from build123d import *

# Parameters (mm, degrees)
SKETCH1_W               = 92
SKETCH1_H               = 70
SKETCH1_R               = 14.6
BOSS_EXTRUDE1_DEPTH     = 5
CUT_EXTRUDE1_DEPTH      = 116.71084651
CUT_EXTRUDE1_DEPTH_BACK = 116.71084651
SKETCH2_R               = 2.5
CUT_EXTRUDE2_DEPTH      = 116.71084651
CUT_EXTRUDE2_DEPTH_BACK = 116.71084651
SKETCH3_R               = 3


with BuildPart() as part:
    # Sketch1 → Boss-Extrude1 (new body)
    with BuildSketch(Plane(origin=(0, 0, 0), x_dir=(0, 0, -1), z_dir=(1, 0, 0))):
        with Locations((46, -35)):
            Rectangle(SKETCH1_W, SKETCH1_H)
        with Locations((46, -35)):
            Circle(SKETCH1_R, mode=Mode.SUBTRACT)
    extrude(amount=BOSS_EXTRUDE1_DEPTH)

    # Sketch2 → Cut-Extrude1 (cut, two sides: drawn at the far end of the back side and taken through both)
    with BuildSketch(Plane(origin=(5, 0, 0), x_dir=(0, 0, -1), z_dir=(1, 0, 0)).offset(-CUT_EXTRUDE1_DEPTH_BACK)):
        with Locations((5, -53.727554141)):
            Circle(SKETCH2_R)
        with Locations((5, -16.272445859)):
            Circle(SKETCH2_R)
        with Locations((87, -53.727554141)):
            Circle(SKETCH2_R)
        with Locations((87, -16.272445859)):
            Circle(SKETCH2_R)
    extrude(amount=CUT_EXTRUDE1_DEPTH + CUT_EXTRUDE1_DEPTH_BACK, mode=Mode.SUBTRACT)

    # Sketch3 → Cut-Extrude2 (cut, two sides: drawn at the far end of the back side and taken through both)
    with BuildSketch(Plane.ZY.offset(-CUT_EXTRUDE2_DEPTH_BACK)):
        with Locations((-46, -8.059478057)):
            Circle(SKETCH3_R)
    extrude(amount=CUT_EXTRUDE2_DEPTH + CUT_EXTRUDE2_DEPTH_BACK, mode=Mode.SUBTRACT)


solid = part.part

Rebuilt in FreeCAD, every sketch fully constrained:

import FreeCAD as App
import Part
import Sketcher

V = App.Vector
Q = App.Units.Quantity


def add_polygon(sketch, points):
    """Adds a closed chain of lines whose ends are joined by coincident constraints."""
    first, n = sketch.GeometryCount, len(points)
    for a, b in zip(points, points[1:] + points[:1]):
        sketch.addGeometry(Part.LineSegment(App.Vector(*a, 0), App.Vector(*b, 0)), False)
    for i in range(n):
        sketch.addConstraint(Sketcher.Constraint("Coincident", first + i, 2, first + (i + 1) % n, 1))

doc = App.newDocument("Part")
params = doc.addObject("Spreadsheet::Sheet", "Params")
for row, (alias, value) in enumerate([
    ("sketch1_diameter", "29.2 mm"),
    ("sketch1_width", "70 mm"),
    ("sketch1_height", "92 mm"),
    ("pad1_length", "5 mm"),
    ("sketch2_diameter", "5 mm"),
    ("sketch3_diameter", "6 mm"),
], start=1):
    params.set(f"A{row}", alias)
    params.set(f"B{row}", "=" + value)
    params.setAlias(f"B{row}", alias)

body = doc.addObject("PartDesign::Body", "Body")

# Sketch on YZ plane
sketch1 = doc.addObject("Sketcher::SketchObject", "Sketch")
body.addObject(sketch1)
sketch1.AttachmentSupport = (doc.YZ_Plane, [""])
sketch1.MapMode = "FlatFace"
add_polygon(sketch1, [(0, 0), (-70, 0), (-70, -92), (0, -92)])  # lines 0-3
sketch1.addGeometry(Part.Circle(V(-35, -46, 0), V(0, 0, 1), 15), False)  # 4
sketch1.addConstraint(Sketcher.Constraint("Horizontal", 0))
sketch1.addConstraint(Sketcher.Constraint("Vertical", 1))
sketch1.addConstraint(Sketcher.Constraint("Horizontal", 2))
sketch1.addConstraint(Sketcher.Constraint("Vertical", 3))
sketch1.addConstraint(Sketcher.Constraint("Coincident", 3, 2, -1, 1))
sketch1.addConstraint(Sketcher.Constraint("Diameter", 4, Q("29.2 mm")))
sketch1.addConstraint(Sketcher.Constraint("DistanceX", 0, 2, 0, 1, Q("70 mm")))
sketch1.addConstraint(Sketcher.Constraint("DistanceY", 1, 2, 1, 1, Q("92 mm")))
sketch1.addConstraint(Sketcher.Constraint("DistanceX", 4, 3, -1, 1, Q("35 mm")))
sketch1.addConstraint(Sketcher.Constraint("DistanceY", 4, 3, -1, 1, Q("46 mm")))
sketch1.setExpression("Constraints[9]", "Params.sketch1_diameter")
sketch1.setExpression("Constraints[10]", "Params.sketch1_width")
sketch1.setExpression("Constraints[11]", "Params.sketch1_height")
pad1 = doc.addObject("PartDesign::Pad", "Pad")
body.addObject(pad1)
pad1.Profile = sketch1
pad1.setExpression("Length", "Params.pad1_length")

# Sketch on YZ plane
sketch2 = doc.addObject("Sketcher::SketchObject", "Sketch001")
body.addObject(sketch2)
sketch2.AttachmentSupport = (doc.YZ_Plane, [""])
sketch2.MapMode = "FlatFace"
sketch2.AttachmentOffset = App.Placement(V(0, 0, 5), App.Rotation())
sketch2.addGeometry(Part.Circle(V(-53.7, -5, 0), V(0, 0, 1), 2.5), False)
sketch2.addGeometry(Part.Circle(V(-16.3, -5, 0), V(0, 0, 1), 2.5), False)
sketch2.addGeometry(Part.Circle(V(-53.7, -87, 0), V(0, 0, 1), 2.5), False)
sketch2.addGeometry(Part.Circle(V(-16.3, -87, 0), V(0, 0, 1), 2.5), False)
sketch2.addConstraint(Sketcher.Constraint("Equal", 0, 1))
sketch2.addConstraint(Sketcher.Constraint("Equal", 1, 2))
sketch2.addConstraint(Sketcher.Constraint("Equal", 2, 3))
sketch2.addConstraint(Sketcher.Constraint("Horizontal", 0, 3, 1, 3))
sketch2.addConstraint(Sketcher.Constraint("Horizontal", 2, 3, 3, 3))
sketch2.addConstraint(Sketcher.Constraint("Vertical", 0, 3, 2, 3))
sketch2.addConstraint(Sketcher.Constraint("Vertical", 1, 3, 3, 3))
sketch2.addConstraint(Sketcher.Constraint("Diameter", 0, Q("5 mm")))
sketch2.addConstraint(Sketcher.Constraint("DistanceY", 0, 3, -1, 1, Q("5 mm")))
sketch2.addConstraint(Sketcher.Constraint("DistanceY", 2, 3, -1, 1, Q("87 mm")))
sketch2.addConstraint(Sketcher.Constraint("DistanceX", 0, 3, 1, 3, Q("37.455108 mm")))
sketch2.addConstraint(Sketcher.Constraint("DistanceX", 0, 3, -1, 1, Q("53.727554 mm")))
sketch2.setExpression("Constraints[7]", "Params.sketch2_diameter")
pocket1 = doc.addObject("PartDesign::Pocket", "Pocket")
body.addObject(pocket1)
pocket1.Profile = sketch2
pocket1.Type = "ThroughAll"
pocket1.Midplane = True

# Sketch on YZ plane
sketch3 = doc.addObject("Sketcher::SketchObject", "Sketch002")
body.addObject(sketch3)
sketch3.AttachmentSupport = (doc.YZ_Plane, [""])
sketch3.MapMode = "FlatFace"
sketch3.addGeometry(Part.Circle(V(-8.1, -46, 0), V(0, 0, 1), 3), False)
sketch3.addConstraint(Sketcher.Constraint("Diameter", 0, Q("6 mm")))
sketch3.addConstraint(Sketcher.Constraint("DistanceY", 0, 3, -1, 1, Q("46 mm")))
sketch3.addConstraint(Sketcher.Constraint("DistanceX", 0, 3, -1, 1, Q("8.059478 mm")))
sketch3.setExpression("Constraints[0]", "Params.sketch3_diameter")
pocket2 = doc.addObject("PartDesign::Pocket", "Pocket001")
body.addObject(pocket2)
pocket2.Profile = sketch3
pocket2.Type = "ThroughAll"
pocket2.Midplane = True

doc.recompute()
